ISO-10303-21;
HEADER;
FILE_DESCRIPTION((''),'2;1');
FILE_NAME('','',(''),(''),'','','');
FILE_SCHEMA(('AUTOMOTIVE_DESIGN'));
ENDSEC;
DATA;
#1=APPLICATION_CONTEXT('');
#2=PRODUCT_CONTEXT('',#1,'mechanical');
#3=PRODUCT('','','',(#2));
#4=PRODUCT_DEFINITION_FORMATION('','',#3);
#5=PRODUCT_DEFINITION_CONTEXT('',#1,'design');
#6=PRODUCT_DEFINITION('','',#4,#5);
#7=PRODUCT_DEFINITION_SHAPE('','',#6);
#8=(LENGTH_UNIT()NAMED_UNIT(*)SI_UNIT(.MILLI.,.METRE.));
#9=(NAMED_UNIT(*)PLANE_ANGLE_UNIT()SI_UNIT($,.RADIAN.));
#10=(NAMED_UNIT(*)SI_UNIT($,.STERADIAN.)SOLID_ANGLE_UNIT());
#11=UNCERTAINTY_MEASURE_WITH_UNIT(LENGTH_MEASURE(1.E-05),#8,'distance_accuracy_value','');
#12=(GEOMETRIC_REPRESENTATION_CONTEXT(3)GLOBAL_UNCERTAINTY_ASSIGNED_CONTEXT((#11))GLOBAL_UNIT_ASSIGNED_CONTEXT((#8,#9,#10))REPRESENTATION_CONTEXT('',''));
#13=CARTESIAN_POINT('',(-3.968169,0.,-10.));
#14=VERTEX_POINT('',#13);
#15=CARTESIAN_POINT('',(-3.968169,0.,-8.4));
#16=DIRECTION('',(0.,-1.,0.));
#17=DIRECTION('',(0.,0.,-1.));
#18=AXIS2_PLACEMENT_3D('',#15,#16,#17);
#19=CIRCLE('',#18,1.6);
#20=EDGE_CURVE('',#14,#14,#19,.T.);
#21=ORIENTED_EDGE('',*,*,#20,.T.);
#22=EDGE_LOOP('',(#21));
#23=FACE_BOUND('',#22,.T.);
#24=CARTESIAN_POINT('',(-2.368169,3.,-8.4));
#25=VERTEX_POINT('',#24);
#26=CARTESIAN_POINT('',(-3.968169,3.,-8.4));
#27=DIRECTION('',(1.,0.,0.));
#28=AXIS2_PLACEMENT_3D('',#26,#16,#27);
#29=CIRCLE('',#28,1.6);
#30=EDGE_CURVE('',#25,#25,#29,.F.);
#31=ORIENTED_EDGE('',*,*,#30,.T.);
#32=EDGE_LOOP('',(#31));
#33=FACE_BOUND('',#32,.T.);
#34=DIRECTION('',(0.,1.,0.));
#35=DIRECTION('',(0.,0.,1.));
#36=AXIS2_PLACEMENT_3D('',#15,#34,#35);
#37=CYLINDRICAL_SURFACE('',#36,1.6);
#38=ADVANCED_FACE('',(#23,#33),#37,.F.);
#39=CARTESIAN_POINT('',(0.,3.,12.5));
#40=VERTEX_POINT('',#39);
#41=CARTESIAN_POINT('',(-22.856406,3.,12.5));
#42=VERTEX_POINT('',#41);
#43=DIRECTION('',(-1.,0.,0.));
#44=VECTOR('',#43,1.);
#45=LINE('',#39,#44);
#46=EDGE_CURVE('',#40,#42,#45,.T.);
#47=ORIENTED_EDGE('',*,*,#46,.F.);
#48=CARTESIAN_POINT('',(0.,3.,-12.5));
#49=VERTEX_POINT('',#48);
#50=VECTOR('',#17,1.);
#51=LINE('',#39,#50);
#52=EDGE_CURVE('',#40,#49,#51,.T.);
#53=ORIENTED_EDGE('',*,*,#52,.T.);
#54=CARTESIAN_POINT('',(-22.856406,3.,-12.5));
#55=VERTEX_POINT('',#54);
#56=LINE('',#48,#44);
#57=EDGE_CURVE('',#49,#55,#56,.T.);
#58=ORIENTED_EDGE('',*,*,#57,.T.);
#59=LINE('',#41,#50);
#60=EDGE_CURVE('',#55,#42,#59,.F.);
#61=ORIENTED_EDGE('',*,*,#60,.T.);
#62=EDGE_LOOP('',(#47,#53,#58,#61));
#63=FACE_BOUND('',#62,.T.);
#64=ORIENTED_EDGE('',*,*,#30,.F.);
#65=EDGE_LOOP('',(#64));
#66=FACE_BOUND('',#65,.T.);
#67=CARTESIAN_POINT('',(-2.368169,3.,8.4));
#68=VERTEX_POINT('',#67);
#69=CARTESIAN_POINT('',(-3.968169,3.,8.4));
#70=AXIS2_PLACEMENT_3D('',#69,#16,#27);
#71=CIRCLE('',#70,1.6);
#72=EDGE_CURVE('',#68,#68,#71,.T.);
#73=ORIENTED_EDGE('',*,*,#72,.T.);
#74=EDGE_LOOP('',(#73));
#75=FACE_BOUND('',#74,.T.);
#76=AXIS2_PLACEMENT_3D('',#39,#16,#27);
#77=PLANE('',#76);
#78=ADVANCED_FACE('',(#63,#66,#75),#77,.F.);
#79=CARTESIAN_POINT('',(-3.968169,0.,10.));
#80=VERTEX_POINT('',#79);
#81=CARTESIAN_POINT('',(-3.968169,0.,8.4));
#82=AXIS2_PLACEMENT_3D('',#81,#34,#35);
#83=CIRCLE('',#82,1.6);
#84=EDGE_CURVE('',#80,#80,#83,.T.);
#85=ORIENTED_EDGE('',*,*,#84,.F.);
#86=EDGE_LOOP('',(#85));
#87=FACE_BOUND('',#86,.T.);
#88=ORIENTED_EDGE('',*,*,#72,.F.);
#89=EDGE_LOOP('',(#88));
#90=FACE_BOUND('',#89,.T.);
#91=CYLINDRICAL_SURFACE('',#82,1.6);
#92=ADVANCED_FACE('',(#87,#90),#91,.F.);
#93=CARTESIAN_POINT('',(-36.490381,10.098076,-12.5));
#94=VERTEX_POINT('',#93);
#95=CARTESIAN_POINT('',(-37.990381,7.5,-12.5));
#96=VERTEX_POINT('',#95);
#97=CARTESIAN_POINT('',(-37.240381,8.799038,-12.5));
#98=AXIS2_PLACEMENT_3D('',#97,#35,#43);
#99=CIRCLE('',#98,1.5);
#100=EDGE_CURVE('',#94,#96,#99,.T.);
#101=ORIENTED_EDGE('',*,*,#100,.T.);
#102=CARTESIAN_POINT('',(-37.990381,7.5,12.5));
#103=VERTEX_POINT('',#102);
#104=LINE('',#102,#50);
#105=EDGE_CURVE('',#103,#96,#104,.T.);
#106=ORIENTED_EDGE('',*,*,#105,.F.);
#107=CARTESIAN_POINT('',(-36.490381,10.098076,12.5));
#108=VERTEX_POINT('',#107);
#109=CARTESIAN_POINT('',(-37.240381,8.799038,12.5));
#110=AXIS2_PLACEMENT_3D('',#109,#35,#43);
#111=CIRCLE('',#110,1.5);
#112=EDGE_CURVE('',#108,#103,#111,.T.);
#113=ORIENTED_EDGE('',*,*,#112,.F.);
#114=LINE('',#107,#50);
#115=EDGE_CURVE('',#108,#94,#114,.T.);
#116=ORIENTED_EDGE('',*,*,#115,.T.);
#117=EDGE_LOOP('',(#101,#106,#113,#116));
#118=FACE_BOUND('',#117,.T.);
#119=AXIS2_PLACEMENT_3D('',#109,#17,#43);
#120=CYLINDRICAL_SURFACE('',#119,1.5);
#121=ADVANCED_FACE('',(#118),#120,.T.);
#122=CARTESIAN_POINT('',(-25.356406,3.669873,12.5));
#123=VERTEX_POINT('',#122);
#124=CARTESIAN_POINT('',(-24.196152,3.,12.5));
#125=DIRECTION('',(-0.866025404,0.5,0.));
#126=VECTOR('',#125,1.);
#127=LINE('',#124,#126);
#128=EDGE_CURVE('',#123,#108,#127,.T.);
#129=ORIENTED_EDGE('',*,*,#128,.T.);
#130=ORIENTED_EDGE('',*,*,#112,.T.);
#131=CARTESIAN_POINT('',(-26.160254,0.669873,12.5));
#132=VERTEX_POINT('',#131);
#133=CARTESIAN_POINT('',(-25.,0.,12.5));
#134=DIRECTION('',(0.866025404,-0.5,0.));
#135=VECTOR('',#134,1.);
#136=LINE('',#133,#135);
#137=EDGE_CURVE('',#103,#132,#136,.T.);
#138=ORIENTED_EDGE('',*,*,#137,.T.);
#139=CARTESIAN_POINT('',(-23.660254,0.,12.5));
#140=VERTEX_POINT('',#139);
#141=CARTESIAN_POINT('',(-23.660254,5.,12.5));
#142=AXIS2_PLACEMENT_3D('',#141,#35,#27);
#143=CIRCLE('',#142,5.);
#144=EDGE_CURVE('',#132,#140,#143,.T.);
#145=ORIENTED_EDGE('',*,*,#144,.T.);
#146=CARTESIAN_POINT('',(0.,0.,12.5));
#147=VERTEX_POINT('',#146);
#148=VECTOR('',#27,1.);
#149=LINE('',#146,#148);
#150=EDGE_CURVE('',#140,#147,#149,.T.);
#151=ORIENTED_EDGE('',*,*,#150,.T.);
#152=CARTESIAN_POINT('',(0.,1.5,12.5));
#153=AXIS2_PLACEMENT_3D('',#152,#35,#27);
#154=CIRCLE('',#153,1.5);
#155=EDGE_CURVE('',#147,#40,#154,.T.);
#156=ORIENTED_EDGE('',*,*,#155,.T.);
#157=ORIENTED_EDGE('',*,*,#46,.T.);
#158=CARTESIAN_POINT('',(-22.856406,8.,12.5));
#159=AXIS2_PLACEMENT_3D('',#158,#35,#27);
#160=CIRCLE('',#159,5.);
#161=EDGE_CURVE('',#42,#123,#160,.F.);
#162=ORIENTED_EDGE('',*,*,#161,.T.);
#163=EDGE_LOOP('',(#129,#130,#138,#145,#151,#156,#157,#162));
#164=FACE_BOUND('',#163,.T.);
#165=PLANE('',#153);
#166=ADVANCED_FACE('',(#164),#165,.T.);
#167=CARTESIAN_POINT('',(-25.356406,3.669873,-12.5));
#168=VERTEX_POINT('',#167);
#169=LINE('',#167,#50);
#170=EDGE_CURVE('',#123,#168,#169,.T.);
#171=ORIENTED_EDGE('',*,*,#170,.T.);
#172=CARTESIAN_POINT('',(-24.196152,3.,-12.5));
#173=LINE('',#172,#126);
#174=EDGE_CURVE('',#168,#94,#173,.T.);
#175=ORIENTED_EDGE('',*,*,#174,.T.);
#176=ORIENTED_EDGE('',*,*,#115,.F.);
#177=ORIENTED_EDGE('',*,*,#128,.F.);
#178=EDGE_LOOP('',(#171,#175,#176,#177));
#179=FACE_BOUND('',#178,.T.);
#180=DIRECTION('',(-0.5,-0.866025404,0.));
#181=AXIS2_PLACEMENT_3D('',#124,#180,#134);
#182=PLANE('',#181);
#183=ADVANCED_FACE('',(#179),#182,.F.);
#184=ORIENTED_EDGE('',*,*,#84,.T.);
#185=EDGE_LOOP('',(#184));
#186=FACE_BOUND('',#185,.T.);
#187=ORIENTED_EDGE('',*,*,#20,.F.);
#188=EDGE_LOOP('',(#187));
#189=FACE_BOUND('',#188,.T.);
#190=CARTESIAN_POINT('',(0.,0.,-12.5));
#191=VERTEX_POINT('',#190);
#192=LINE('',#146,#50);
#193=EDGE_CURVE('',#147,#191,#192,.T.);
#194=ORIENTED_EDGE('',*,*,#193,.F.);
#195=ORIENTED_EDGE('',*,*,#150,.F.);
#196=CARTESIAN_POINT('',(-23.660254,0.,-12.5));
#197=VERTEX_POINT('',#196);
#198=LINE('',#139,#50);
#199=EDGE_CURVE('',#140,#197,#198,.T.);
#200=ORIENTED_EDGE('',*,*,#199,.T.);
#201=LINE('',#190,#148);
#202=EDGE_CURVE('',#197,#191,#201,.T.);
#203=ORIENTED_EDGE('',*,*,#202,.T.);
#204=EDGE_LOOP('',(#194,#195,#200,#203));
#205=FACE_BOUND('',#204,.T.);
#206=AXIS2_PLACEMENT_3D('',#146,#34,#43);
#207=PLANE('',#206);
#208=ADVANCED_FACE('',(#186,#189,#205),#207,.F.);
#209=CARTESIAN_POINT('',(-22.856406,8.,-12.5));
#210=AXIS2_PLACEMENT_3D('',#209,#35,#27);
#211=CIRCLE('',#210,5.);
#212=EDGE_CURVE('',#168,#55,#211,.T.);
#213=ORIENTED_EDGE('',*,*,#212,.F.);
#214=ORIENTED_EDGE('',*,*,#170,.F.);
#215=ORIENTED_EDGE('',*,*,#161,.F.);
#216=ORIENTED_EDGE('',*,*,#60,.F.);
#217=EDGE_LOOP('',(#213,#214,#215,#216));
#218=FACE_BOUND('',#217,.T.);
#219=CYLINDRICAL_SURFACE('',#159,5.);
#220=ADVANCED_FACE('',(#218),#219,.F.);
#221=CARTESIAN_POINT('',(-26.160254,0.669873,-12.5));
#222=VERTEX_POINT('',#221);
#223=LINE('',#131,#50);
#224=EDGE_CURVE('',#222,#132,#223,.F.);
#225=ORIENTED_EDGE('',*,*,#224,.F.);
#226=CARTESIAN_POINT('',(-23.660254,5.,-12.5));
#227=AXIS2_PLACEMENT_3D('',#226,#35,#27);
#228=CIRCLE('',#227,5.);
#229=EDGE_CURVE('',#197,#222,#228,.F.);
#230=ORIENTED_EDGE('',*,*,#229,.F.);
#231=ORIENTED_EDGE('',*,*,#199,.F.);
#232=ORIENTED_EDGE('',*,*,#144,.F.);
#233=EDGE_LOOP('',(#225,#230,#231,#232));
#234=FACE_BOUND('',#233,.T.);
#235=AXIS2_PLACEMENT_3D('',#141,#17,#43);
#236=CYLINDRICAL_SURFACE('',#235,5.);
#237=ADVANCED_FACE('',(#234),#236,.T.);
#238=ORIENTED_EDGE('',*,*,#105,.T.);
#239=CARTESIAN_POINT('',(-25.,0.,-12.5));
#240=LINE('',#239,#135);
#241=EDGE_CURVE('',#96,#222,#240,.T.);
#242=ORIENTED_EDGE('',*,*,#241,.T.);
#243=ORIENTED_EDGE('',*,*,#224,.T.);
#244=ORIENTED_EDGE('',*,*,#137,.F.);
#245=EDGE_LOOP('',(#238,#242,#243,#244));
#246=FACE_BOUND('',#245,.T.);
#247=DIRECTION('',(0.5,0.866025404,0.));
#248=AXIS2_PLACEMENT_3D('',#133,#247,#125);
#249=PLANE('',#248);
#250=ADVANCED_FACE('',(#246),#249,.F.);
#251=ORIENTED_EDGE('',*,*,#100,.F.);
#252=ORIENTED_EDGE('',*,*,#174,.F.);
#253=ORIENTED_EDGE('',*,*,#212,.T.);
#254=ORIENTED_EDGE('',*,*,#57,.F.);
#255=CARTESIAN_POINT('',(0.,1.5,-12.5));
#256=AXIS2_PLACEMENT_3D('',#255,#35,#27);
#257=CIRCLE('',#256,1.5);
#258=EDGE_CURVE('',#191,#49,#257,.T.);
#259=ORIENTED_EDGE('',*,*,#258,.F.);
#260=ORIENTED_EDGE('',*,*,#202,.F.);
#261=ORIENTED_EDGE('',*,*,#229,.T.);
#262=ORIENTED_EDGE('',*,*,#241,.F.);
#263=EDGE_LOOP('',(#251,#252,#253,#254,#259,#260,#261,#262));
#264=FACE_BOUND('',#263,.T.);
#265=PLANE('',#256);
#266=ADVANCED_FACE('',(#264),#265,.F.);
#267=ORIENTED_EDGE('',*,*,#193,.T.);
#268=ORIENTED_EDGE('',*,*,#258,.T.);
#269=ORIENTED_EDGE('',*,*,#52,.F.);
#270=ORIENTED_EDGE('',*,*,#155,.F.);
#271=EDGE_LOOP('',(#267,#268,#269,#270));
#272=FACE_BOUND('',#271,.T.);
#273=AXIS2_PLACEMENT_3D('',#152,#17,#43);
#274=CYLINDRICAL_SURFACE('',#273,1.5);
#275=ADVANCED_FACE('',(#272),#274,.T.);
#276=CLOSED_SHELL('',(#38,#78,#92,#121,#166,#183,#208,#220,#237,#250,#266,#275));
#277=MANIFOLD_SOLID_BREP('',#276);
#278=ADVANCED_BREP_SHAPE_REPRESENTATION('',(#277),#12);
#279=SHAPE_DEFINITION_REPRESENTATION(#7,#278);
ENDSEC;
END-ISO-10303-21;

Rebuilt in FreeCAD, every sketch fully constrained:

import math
import FreeCAD as App
import Part
import Sketcher
Q = App.Units.Quantity


def edges_at(feature, points):
    """Names of the edges that pass closest to the given points."""
    edges = feature.Shape.Edges
    near = lambda p: min(range(len(edges)), key=lambda i: edges[i].distToShape(Part.Vertex(*p))[0])
    return sorted({f"Edge{near(p) + 1}" for p in points})

doc = App.newDocument("Part")
body = doc.addObject("PartDesign::Body", "Body")

sketch1 = body.newObject("Sketcher::SketchObject", "Sketch")
sketch1.AttachmentSupport = (doc.getObject("XY_Plane"), [""])
sketch1.MapMode = "FlatFace"
sketch1.addGeometry([
    Part.LineSegment(App.Vector(-25, 0, 0), App.Vector(0, 0, 0)),
    Part.ArcOfCircle(Part.Circle(App.Vector(0, 1.5, 0), App.Vector(0, 0, 1), 1.5), math.radians(-90), math.radians(90)),
    Part.LineSegment(App.Vector(0, 3, 0), App.Vector(-24.2, 3, 0)),
    Part.LineSegment(App.Vector(-24.2, 3, 0), App.Vector(-36.5, 10.1, 0)),
    Part.ArcOfCircle(Part.Circle(App.Vector(-37.2, 8.8, 0), App.Vector(0, 0, 1), 1.5), math.radians(60), math.radians(240)),
    Part.LineSegment(App.Vector(-38, 7.5, 0), App.Vector(-25, 0, 0)),
], False)
sketch1.addConstraint([
    Sketcher.Constraint("Tangent", 0, 2, 1, 1),
    Sketcher.Constraint("Tangent", 1, 2, 2, 1),
    Sketcher.Constraint("Coincident", 2, 2, 3, 1),
    Sketcher.Constraint("Tangent", 3, 2, 4, 1),
    Sketcher.Constraint("Tangent", 4, 2, 5, 1),
    Sketcher.Constraint("Coincident", 5, 2, 0, 1),
    Sketcher.Constraint("Horizontal", 0),
    Sketcher.Constraint("Horizontal", 2),
    Sketcher.Constraint("Coincident", 0, 2, -1, 1),
    Sketcher.Constraint("Equal", 1, 4),
    Sketcher.Constraint("Parallel", 3, 5),
    Sketcher.Constraint("Radius", 1, Q("1.5 mm")),
    Sketcher.Constraint("DistanceX", 0, 1, 0, 2, Q("25 mm")),
    Sketcher.Constraint("Angle", 3, Q("150 deg")),
    Sketcher.Constraint("Distance", 5, Q("15 mm")),
])
pad1 = body.newObject("PartDesign::Pad", "Pad")
pad1.Profile = sketch1
pad1.Length = 25
pad1.Midplane = True

sketch2 = body.newObject("Sketcher::SketchObject", "Sketch001")
sketch2.AttachmentSupport = (doc.getObject("XZ_Plane"), [""])
sketch2.MapMode = "FlatFace"
sketch2.AttachmentOffset = App.Placement(App.Vector(0, 0, -3), App.Rotation())
sketch2.addGeometry(Part.Circle(App.Vector(-4, 8.4, 0), App.Vector(0, 0, 1), 1.6), False)
sketch2.addConstraint([
    Sketcher.Constraint("Diameter", 0, Q("3.2 mm")),
    Sketcher.Constraint("DistanceY", -1, 1, 0, 3, Q("8.4 mm")),
    Sketcher.Constraint("DistanceX", 0, 3, -1, 1, Q("3.968169 mm")),
])
pocket1 = body.newObject("PartDesign::Pocket", "Pocket")
pocket1.Profile = sketch2
pocket1.Length = 84.712589
pocket1.Midplane = True
doc.recompute()

mirrored = body.newObject("PartDesign::Mirrored", "Mirrored")
mirrored.Originals = [pocket1]
mirrored.MirrorPlane = (doc.getObject("XY_Plane"), [""])
body.Tip = mirrored
doc.recompute()

fillet = body.newObject("PartDesign::Fillet", "Fillet")
fillet.Base = (mirrored, edges_at(mirrored, [(-25, 0, 0), (-24.196, 3, 0)]))
fillet.Radius = 5

doc.recompute()
